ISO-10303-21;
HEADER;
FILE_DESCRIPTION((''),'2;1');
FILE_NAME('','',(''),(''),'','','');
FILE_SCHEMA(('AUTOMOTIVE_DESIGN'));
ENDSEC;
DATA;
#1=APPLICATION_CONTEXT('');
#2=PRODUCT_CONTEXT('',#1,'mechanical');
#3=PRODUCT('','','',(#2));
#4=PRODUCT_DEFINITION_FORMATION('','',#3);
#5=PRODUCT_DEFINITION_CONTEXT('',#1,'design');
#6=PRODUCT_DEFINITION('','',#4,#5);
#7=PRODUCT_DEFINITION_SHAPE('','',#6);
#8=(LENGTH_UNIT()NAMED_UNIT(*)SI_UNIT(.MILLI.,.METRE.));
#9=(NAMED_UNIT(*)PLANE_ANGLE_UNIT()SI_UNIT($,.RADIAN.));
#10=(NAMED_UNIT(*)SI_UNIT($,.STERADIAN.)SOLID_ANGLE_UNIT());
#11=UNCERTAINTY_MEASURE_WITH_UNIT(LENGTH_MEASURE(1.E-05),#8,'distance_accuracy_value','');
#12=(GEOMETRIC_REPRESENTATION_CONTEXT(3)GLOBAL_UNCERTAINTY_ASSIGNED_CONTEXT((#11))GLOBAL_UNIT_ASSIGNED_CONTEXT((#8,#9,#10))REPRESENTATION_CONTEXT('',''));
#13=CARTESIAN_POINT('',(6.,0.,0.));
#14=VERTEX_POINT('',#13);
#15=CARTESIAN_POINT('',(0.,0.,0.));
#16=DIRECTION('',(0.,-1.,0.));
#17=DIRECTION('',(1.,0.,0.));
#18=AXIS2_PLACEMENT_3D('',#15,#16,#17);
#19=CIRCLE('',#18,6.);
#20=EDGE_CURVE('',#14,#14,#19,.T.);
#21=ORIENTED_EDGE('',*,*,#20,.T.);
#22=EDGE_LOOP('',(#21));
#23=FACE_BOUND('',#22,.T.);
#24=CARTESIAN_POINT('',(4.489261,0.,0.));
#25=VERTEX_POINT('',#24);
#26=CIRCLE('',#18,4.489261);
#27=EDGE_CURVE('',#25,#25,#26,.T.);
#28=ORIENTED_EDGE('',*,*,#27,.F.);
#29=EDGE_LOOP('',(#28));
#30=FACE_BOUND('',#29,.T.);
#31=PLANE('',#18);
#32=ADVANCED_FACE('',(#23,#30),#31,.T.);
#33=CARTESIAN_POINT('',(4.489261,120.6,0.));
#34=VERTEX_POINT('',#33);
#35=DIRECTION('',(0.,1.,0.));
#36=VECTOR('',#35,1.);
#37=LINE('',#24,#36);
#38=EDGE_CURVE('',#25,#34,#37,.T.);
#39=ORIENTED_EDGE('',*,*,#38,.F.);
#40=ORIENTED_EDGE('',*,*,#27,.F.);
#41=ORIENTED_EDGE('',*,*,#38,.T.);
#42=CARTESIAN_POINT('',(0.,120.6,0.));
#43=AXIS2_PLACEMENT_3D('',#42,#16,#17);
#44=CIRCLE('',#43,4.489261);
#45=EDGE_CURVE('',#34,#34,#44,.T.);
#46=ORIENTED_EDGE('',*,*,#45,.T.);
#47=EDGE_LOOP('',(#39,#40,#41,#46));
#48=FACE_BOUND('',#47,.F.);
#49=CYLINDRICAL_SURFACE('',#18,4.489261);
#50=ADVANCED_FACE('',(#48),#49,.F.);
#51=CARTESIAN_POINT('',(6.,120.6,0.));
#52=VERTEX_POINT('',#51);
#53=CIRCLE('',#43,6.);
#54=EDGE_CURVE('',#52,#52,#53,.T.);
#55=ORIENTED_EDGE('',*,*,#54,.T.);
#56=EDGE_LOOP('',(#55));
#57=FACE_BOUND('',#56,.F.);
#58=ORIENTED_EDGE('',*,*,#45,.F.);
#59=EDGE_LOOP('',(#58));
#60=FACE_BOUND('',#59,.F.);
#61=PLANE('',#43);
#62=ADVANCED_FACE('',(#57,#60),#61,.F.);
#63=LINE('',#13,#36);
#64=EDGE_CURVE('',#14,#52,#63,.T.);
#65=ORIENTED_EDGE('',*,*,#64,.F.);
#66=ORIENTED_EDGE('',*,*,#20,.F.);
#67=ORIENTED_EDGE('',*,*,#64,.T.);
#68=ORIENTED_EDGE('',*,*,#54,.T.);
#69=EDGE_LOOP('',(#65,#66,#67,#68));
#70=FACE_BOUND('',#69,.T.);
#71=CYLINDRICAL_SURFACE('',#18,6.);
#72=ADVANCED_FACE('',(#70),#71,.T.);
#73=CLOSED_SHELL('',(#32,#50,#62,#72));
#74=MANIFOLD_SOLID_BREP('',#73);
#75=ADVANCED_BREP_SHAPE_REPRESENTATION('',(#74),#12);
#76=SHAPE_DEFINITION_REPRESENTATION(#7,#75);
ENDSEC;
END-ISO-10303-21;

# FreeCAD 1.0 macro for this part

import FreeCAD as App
import Part
import Sketcher

V = App.Vector

doc = App.newDocument("Part")
body = doc.addObject("PartDesign::Body", "Body")

sketch1 = body.newObject("Sketcher::SketchObject", "Sketch")
sketch1.AttachmentSupport = (doc.getObject("XZ_Plane"), [""])
sketch1.MapMode = "FlatFace"
sketch1.addGeometry(Part.Circle(V(0, 0, 0), V(0, 0, 1), 5.7), False)
sketch1.addGeometry(Part.Circle(V(0, 0, 0), V(0, 0, 1), 4.7), False)
sketch1.addConstraint(Sketcher.Constraint("Coincident", 0, 3, -1, 1))
sketch1.addConstraint(Sketcher.Constraint("Coincident", 1, 3, -1, 1))
sketch1.addConstraint(Sketcher.Constraint("Diameter", 0, 11.4))
sketch1.addConstraint(Sketcher.Constraint("Diameter", 1, 9.4))
pad1 = body.newObject("PartDesign::Pad", "Pad")
pad1.Profile = sketch1
pad1.Length = 120
pad1.Reversed = True

sketch2 = body.newObject("Sketcher::SketchObject", "Sketch001")
sketch2.AttachmentSupport = (doc.getObject("XZ_Plane"), [""])
sketch2.MapMode = "FlatFace"
sketch2.addGeometry(Part.Circle(V(0, 0, 0), V(0, 0, 1), 6), False)
sketch2.addGeometry(Part.Circle(V(0, 0, 0), V(0, 0, 1), 4.489261), False)
sketch2.addConstraint(Sketcher.Constraint("Coincident", 0, 3, -1, 1))
sketch2.addConstraint(Sketcher.Constraint("Coincident", 1, 3, -1, 1))
sketch2.addConstraint(Sketcher.Constraint("Diameter", 0, 12.0))
sketch2.addConstraint(Sketcher.Constraint("Diameter", 1, 8.978522))
pad2 = body.newObject("PartDesign::Pad", "Pad001")
pad2.Profile = sketch2
pad2.Length = 120.6
pad2.Reversed = True

doc.recompute()
